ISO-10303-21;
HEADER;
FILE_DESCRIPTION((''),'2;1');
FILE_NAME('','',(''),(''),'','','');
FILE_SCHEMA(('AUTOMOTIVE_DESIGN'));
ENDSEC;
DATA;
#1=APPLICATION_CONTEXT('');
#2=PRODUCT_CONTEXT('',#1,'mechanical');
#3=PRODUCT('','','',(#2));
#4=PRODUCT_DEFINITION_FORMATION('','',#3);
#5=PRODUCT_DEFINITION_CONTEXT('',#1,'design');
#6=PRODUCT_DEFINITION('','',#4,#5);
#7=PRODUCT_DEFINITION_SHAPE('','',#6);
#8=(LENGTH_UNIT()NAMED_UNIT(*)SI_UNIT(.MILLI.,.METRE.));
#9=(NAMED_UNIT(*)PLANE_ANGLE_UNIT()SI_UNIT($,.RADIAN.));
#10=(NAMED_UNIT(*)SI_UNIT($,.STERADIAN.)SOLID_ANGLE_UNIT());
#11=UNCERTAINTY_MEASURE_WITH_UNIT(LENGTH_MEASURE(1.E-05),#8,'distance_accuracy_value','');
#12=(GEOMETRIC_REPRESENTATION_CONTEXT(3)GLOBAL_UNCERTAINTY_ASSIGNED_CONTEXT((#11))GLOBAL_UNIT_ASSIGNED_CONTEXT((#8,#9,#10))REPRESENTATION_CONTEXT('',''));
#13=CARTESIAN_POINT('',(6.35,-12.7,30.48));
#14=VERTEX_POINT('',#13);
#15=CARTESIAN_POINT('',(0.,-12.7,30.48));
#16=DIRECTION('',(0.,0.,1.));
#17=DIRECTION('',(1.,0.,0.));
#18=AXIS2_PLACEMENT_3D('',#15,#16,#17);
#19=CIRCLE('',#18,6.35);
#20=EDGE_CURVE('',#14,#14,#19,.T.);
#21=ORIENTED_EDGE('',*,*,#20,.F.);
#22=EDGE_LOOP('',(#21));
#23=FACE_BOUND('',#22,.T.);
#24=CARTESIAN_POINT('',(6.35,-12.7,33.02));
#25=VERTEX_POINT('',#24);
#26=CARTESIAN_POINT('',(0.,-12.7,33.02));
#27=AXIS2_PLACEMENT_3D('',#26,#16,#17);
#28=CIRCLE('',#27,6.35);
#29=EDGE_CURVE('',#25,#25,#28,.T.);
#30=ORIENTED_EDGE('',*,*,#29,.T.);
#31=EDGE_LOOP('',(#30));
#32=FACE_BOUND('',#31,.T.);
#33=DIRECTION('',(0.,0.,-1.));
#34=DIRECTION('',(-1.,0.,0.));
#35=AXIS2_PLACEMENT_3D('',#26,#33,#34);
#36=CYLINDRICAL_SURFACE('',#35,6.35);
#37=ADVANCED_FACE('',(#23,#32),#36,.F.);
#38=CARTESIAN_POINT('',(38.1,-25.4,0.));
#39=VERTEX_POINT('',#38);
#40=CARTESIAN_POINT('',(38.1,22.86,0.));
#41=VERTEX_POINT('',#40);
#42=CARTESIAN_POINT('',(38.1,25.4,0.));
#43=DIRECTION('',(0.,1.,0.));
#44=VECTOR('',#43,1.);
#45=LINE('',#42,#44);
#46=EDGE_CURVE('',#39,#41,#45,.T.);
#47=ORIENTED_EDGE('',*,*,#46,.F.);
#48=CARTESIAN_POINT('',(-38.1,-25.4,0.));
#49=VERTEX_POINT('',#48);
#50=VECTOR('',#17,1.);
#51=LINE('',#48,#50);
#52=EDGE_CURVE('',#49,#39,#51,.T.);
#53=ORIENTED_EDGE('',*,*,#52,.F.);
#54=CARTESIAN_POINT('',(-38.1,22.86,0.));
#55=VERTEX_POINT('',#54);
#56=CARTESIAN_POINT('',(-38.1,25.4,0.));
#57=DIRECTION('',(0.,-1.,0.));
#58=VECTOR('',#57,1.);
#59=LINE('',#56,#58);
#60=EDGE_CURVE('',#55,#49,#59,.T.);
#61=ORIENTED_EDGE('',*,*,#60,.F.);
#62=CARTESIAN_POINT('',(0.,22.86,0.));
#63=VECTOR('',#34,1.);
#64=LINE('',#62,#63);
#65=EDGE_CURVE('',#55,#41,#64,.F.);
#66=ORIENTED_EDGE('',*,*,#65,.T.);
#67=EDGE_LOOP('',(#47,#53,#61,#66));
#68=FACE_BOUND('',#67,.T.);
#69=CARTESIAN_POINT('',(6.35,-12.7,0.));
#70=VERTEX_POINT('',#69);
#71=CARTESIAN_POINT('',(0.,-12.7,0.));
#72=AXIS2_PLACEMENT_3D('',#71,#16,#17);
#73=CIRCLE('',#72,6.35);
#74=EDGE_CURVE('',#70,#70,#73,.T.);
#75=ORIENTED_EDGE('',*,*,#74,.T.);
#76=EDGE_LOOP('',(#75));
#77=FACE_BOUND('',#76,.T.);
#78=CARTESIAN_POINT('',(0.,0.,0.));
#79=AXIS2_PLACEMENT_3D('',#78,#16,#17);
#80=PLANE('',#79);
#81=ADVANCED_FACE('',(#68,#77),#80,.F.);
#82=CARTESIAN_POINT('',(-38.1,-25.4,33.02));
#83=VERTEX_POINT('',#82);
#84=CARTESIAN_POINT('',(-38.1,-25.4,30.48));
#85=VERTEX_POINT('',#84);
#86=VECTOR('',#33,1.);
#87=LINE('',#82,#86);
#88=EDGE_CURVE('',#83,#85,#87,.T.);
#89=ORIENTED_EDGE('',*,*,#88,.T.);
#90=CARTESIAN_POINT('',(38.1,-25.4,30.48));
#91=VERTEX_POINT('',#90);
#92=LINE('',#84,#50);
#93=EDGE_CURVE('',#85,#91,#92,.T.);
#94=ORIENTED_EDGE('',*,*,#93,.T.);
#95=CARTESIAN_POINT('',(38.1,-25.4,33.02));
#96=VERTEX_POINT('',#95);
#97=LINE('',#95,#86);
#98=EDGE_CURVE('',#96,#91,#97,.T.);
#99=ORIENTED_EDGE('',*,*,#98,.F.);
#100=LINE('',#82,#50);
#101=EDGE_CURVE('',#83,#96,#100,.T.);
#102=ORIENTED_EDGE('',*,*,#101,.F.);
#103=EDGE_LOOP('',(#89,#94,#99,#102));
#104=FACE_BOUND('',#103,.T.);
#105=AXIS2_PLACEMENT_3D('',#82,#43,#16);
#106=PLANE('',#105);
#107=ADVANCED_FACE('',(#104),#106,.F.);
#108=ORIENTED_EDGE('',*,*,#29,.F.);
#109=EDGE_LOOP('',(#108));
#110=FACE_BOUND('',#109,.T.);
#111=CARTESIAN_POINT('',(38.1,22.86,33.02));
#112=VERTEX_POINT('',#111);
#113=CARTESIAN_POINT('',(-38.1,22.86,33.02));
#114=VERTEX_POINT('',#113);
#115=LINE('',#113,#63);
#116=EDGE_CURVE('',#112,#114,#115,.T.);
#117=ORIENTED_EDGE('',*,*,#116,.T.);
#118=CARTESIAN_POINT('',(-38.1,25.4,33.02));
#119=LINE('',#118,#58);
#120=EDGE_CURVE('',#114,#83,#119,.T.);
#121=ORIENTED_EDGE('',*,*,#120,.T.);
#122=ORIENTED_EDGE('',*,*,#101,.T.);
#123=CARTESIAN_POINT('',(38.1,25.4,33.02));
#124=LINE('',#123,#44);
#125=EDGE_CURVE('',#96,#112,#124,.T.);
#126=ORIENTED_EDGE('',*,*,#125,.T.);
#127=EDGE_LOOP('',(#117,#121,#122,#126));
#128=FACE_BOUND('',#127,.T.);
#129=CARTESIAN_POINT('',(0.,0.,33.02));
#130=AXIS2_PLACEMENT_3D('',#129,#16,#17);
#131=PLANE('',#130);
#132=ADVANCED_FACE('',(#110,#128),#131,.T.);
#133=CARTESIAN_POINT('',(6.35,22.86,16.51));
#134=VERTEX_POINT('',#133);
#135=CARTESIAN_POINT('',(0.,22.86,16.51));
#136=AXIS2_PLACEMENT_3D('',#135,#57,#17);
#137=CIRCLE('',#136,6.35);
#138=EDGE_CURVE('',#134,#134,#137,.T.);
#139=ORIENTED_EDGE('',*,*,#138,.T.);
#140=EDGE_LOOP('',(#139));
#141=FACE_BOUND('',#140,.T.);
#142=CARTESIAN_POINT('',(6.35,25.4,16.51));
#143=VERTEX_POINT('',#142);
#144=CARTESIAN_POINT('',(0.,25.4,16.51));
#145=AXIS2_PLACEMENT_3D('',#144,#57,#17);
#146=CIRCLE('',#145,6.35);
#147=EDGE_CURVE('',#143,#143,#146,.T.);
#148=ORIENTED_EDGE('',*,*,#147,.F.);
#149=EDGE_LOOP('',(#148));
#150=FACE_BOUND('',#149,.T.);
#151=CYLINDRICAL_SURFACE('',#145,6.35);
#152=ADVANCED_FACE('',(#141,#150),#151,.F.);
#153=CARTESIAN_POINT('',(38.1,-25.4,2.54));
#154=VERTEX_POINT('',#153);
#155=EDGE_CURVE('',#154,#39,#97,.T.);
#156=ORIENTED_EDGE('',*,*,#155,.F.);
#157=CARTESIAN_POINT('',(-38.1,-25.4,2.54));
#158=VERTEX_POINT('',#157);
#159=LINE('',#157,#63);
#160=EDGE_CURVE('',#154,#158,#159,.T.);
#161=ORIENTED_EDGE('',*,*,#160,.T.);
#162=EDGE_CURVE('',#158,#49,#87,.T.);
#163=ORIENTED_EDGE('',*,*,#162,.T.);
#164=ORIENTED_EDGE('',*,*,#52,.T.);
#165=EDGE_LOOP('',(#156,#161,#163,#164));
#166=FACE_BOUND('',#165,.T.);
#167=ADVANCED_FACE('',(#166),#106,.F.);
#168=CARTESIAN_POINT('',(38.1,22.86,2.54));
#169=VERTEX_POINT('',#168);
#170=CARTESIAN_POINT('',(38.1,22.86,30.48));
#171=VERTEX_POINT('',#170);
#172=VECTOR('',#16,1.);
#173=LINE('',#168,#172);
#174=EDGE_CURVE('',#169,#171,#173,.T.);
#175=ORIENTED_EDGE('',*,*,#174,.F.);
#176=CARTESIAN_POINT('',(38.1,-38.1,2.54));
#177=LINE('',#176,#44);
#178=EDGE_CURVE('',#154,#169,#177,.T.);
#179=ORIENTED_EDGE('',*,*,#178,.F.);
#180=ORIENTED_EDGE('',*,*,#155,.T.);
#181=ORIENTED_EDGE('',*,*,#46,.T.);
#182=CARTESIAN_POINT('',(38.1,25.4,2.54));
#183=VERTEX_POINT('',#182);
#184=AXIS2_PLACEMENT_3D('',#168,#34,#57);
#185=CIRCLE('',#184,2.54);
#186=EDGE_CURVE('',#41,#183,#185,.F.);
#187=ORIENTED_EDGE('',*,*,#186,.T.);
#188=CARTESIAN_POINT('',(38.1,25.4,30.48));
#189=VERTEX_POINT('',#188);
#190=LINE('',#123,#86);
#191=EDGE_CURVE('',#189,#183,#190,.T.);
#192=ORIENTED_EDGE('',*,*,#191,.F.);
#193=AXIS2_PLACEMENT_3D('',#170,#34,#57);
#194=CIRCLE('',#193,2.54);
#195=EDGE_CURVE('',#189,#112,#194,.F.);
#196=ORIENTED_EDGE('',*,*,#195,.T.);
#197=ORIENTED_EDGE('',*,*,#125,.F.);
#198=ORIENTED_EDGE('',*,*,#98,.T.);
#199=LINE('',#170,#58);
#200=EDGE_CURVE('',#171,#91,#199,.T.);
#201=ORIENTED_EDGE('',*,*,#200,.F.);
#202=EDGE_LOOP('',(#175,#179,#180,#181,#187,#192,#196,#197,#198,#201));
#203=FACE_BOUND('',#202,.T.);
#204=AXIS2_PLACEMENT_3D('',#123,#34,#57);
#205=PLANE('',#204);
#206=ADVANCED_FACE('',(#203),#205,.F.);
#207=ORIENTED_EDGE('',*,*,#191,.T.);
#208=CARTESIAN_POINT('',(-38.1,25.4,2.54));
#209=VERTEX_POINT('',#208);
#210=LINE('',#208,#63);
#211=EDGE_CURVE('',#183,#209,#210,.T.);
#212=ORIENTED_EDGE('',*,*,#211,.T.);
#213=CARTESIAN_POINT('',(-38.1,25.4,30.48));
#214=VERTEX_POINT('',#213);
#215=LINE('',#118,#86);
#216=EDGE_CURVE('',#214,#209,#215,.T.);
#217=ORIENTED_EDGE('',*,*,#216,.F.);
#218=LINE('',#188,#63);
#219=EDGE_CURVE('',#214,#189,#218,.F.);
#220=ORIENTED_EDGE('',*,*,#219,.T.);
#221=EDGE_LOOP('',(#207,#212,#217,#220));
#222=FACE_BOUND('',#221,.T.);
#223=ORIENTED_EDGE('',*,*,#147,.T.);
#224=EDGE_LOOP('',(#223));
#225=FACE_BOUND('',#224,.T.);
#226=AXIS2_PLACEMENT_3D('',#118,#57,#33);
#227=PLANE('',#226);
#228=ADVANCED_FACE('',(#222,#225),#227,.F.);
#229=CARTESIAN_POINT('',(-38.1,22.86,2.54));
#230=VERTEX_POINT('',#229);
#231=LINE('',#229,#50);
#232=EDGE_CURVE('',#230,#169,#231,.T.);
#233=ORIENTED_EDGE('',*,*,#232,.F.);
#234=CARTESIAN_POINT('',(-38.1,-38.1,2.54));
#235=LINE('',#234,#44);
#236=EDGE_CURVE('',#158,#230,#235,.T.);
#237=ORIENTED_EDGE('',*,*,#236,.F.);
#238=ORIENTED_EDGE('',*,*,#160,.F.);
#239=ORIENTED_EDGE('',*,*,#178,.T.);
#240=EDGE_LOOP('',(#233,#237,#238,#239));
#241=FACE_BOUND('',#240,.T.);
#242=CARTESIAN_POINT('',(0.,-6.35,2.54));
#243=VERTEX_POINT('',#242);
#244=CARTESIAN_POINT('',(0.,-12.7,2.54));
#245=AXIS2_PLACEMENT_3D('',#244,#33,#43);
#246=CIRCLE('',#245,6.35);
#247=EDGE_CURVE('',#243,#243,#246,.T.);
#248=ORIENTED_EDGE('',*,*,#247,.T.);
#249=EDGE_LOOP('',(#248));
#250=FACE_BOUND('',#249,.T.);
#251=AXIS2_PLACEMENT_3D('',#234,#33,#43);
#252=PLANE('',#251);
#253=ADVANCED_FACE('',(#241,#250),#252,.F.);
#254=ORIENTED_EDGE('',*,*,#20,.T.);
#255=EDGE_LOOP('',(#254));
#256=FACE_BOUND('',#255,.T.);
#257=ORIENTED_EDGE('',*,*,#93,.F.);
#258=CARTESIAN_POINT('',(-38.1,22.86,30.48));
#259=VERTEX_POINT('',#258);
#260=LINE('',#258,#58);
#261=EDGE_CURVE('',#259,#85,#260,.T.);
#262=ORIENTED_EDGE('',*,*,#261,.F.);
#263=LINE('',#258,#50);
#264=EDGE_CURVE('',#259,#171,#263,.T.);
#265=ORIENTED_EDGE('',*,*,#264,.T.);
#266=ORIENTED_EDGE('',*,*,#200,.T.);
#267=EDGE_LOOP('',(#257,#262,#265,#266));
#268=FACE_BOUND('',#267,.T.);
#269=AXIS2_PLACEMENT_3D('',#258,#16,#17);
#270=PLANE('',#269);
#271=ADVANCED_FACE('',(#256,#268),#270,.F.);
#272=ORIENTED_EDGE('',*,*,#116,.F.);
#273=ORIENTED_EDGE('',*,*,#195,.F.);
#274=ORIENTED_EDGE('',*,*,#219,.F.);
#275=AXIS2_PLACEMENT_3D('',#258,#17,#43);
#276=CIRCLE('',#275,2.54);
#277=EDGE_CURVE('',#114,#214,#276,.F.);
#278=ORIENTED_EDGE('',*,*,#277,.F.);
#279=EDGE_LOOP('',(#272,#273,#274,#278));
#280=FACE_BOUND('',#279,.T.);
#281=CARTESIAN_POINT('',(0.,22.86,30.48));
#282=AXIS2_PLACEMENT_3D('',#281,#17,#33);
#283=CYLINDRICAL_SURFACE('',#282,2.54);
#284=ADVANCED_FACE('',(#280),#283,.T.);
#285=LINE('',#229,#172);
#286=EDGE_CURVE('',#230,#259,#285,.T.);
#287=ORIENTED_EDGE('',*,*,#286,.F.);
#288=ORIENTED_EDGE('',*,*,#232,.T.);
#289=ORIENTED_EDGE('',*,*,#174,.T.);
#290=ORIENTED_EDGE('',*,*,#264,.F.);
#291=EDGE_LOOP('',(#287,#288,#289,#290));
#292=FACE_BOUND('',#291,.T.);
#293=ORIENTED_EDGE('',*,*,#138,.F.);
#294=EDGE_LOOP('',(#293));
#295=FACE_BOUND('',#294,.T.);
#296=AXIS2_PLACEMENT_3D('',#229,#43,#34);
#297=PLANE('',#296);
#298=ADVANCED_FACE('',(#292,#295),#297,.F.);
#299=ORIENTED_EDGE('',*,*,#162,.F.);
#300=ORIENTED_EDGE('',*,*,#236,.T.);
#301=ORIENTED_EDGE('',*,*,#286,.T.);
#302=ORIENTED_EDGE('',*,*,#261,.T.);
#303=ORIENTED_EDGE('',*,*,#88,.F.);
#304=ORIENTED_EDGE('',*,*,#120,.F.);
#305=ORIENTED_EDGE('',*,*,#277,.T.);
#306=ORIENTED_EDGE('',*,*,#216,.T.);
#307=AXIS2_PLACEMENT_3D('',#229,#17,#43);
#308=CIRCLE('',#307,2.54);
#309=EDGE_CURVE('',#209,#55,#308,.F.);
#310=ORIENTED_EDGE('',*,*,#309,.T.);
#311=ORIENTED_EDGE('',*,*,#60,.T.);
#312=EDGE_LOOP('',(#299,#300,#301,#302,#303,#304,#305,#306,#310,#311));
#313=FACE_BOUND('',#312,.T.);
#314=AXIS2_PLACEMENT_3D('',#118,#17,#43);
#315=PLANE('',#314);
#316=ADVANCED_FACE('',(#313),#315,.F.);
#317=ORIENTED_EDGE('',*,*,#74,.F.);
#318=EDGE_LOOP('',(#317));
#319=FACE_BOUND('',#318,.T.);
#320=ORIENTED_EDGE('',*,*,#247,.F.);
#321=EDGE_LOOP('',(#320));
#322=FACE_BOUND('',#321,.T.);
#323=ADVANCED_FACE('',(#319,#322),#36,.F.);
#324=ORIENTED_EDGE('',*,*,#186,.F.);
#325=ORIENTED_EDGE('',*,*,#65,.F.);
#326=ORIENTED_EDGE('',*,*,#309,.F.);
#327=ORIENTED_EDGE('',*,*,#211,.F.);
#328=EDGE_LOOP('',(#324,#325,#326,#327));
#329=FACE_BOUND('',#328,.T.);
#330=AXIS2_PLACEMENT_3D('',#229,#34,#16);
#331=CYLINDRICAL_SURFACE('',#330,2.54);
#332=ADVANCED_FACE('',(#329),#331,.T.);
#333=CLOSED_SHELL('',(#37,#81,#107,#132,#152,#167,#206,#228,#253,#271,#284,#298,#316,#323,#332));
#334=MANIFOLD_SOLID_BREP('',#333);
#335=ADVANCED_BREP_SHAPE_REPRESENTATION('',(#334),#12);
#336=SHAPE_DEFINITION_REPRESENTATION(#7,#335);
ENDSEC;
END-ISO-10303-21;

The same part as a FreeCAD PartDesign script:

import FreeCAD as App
import Part
import Sketcher
from FreeCAD import Vector
Q = App.Units.Quantity


def edges_at(feature, points):
    """Names of the edges that pass closest to the given points."""
    edges = feature.Shape.Edges
    near = lambda p: min(range(len(edges)), key=lambda i: edges[i].distToShape(Part.Vertex(*p))[0])
    return sorted({f"Edge{near(p) + 1}" for p in points})


def add_polygon(sketch, points):
    """Adds a closed chain of lines whose ends are joined by coincident constraints."""
    first, n = sketch.GeometryCount, len(points)
    for a, b in zip(points, points[1:] + points[:1]):
        sketch.addGeometry(Part.LineSegment(App.Vector(*a, 0), App.Vector(*b, 0)), False)
    for i in range(n):
        sketch.addConstraint(Sketcher.Constraint("Coincident", first + i, 2, first + (i + 1) % n, 1))

doc = App.newDocument("Part")
params = doc.addObject("Spreadsheet::Sheet", "Params")
for row, (alias, value) in enumerate([
    ("sketch1_diameter", "0.5 in"),
    ("sketch1_width", "3 in"),
    ("sketch1_height", "2 in"),
    ("pad1_length", "1.3 in"),
    ("sketch2_width", "2.4 in"),
    ("sketch2_height", "1.1 in"),
    ("sketch3_diameter", "0.5 in"),
    ("fillet_radius", "0.1 in"),
], start=1):
    params.set(f"A{row}", alias)
    params.set(f"B{row}", "=" + value)
    params.setAlias(f"B{row}", alias)

body = doc.addObject("PartDesign::Body", "Body")

sketch1 = body.newObject("Sketcher::SketchObject", "Sketch")
sketch1.AttachmentSupport = (doc.getObject("XY_Plane"), [""])
sketch1.MapMode = "FlatFace"
add_polygon(sketch1, [(-38, 25), (-38, -25), (38, -25), (38, 25)])
sketch1.addGeometry(Part.Circle(Vector(0, -13, 0), Vector(0, 0, 1), 6), False)
sketch1.addConstraint([
    Sketcher.Constraint("Vertical", 0),
    Sketcher.Constraint("Horizontal", 1),
    Sketcher.Constraint("Vertical", 2),
    Sketcher.Constraint("Horizontal", 3),
    Sketcher.Constraint("Symmetric", 0, 2, 2, 2, -1, 1),
    Sketcher.Constraint("PointOnObject", 4, 3, -2),
    Sketcher.Constraint("Diameter", 4, Q("0.5 in")),
    Sketcher.Constraint("DistanceX", 1, 1, 1, 2, Q("3 in")),
    Sketcher.Constraint("DistanceY", 0, 2, 0, 1, Q("2 in")),
    Sketcher.Constraint("DistanceY", 4, 3, -1, 1, Q("0.5 in")),
])
sketch1.setExpression("Constraints[10]", "Params.sketch1_diameter")
sketch1.setExpression("Constraints[11]", "Params.sketch1_width")
sketch1.setExpression("Constraints[12]", "Params.sketch1_height")
pad1 = body.newObject("PartDesign::Pad", "Pad")
pad1.Profile = sketch1
pad1.setExpression("Length", "Params.pad1_length")

sketch2 = body.newObject("Sketcher::SketchObject", "Sketch001")
sketch2.AttachmentSupport = (doc.getObject("YZ_Plane"), [""])
sketch2.MapMode = "FlatFace"
sketch2.AttachmentOffset = App.Placement(Vector(0, 0, 1.5 * 25.4), App.Rotation())
add_polygon(sketch2, [(23, 30), (-38, 30), (-38, 3), (23, 3)])
sketch2.addConstraint([
    Sketcher.Constraint("Horizontal", 0),
    Sketcher.Constraint("Vertical", 1),
    Sketcher.Constraint("Horizontal", 2),
    Sketcher.Constraint("Vertical", 3),
    Sketcher.Constraint("DistanceX", 0, 2, 0, 1, Q("2.4 in")),
    Sketcher.Constraint("DistanceY", 1, 2, 1, 1, Q("1.1 in")),
    Sketcher.Constraint("DistanceX", 0, 2, -1, 1, Q("1.5 in")),
    Sketcher.Constraint("DistanceY", -1, 1, 0, 2, Q("1.2 in")),
])
sketch2.setExpression("Constraints[8]", "Params.sketch2_width")
sketch2.setExpression("Constraints[9]", "Params.sketch2_height")
pocket1 = body.newObject("PartDesign::Pocket", "Pocket")
pocket1.Profile = sketch2
pocket1.Type = "ThroughAll"

sketch3 = body.newObject("Sketcher::SketchObject", "Sketch002")
sketch3.AttachmentSupport = (doc.getObject("XZ_Plane"), [""])
sketch3.MapMode = "FlatFace"
sketch3.AttachmentOffset = App.Placement(Vector(0, 0, -0.9 * 25.4), App.Rotation())
sketch3.addGeometry(Part.Circle(Vector(0, 17, 0), Vector(0, 0, 1), 6), False)
sketch3.addConstraint([
    Sketcher.Constraint("PointOnObject", 0, 3, -2),
    Sketcher.Constraint("Diameter", 0, Q("0.5 in")),
    Sketcher.Constraint("DistanceY", -1, 1, 0, 3, Q("0.65 in")),
])
sketch3.setExpression("Constraints[1]", "Params.sketch3_diameter")
pocket2 = body.newObject("PartDesign::Pocket", "Pocket001")
pocket2.Profile = sketch3
pocket2.Type = "ThroughAll"
doc.recompute()

fillet = body.newObject("PartDesign::Fillet", "Fillet")
fillet.Base = (pocket2, edges_at(pocket2, [(0, 25.4, 0), (0, 25.4, 33.02)]))
fillet.setExpression("Radius", "Params.fillet_radius")

doc.recompute()
